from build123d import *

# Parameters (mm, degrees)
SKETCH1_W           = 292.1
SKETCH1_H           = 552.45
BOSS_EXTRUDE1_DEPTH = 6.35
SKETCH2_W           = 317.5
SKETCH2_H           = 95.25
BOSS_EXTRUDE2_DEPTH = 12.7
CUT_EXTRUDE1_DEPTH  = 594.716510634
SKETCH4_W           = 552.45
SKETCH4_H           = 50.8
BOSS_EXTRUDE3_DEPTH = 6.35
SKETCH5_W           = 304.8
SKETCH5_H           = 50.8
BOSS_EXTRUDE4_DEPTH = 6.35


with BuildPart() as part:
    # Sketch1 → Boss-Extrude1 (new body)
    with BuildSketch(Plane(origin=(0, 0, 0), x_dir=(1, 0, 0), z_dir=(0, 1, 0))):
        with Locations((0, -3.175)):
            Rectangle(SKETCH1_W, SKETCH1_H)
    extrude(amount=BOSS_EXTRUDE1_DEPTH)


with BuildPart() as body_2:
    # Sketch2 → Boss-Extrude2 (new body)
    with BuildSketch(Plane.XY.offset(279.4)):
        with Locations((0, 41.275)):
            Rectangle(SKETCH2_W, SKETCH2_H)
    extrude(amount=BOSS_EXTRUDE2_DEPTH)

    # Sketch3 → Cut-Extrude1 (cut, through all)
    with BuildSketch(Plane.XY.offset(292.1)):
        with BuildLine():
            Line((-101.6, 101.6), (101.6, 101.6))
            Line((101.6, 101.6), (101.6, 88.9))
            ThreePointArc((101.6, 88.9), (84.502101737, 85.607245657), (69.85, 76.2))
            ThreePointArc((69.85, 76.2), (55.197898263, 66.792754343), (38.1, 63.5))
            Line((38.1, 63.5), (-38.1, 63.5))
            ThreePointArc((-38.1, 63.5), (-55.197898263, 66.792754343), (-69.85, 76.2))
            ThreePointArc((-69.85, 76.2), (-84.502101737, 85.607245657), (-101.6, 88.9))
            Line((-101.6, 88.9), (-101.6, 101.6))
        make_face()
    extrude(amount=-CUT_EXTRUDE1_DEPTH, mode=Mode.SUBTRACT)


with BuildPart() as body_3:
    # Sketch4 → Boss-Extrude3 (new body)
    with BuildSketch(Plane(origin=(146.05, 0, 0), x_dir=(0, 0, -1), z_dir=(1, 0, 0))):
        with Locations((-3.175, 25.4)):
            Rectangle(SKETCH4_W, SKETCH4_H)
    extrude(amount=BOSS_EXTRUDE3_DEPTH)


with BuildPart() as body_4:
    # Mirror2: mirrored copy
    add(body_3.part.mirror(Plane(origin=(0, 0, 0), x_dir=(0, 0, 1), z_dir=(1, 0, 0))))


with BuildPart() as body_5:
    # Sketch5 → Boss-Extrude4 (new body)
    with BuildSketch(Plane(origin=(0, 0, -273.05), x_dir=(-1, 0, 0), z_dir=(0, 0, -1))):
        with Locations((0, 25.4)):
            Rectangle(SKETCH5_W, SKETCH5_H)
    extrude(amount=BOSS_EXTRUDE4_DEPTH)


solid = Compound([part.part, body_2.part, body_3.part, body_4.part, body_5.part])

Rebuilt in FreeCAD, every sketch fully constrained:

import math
import FreeCAD as App
import Part
import Sketcher
from FreeCAD import Vector
Q = App.Units.Quantity


def add_polygon(sketch, points):
    """Adds a closed chain of lines whose ends are joined by coincident constraints."""
    first, n = sketch.GeometryCount, len(points)
    for a, b in zip(points, points[1:] + points[:1]):
        sketch.addGeometry(Part.LineSegment(App.Vector(*a, 0), App.Vector(*b, 0)), False)
    for i in range(n):
        sketch.addConstraint(Sketcher.Constraint("Coincident", first + i, 2, first + (i + 1) % n, 1))

doc = App.newDocument("Part")
body = doc.addObject("PartDesign::Body", "Body")

sketch1 = body.newObject("Sketcher::SketchObject", "Sketch")
sketch1.AttachmentSupport = (doc.getObject("XZ_Plane"), [""])
sketch1.MapMode = "FlatFace"
add_polygon(sketch1, [(-146.05, -273.05), (-146.05, 279.4), (146.05, 279.4), (146.05, -273.05)])
sketch1.addConstraint([
    Sketcher.Constraint("Vertical", 0),
    Sketcher.Constraint("Horizontal", 1),
    Sketcher.Constraint("Vertical", 2),
    Sketcher.Constraint("Horizontal", 3),
    Sketcher.Constraint("DistanceX", 1, 1, 1, 2, Q("11.5 in")),
    Sketcher.Constraint("DistanceY", -1, 1, 0, 2, Q("11 in")),
    Sketcher.Constraint("DistanceY", 0, 1, 0, 2, Q("21.75 in")),
    Sketcher.Constraint("DistanceX", 0, 2, -1, 1, Q("5.75 in")),
])
pad1 = body.newObject("PartDesign::Pad", "Pad")
pad1.Profile = sketch1
pad1.Length = Q("0.25 in")
pad1.Reversed = True
body2 = doc.addObject("PartDesign::Body", "Body001")

sketch2 = body2.newObject("Sketcher::SketchObject", "Sketch001")
sketch2.AttachmentSupport = (doc.getObject("XY_Plane001"), [""])
sketch2.MapMode = "FlatFace"
sketch2.AttachmentOffset = App.Placement(Vector(0, 0, 11 * 25.4), App.Rotation())
add_polygon(sketch2, [(-158.75, 88.9), (-158.75, -6.35), (158.75, -6.35), (158.75, 88.9)])
sketch2.addConstraint([
    Sketcher.Constraint("Vertical", 0),
    Sketcher.Constraint("Horizontal", 1),
    Sketcher.Constraint("Vertical", 2),
    Sketcher.Constraint("Horizontal", 3),
    Sketcher.Constraint("DistanceX", 1, 1, 1, 2, Q("12.5 in")),
    Sketcher.Constraint("DistanceY", 0, 2, 0, 1, Q("3.75 in")),
    Sketcher.Constraint("DistanceY", -1, 1, 2, 2, Q("3.5 in")),
    Sketcher.Constraint("DistanceX", 0, 2, -1, 1, Q("6.25 in")),
])
pad2 = body2.newObject("PartDesign::Pad", "Pad001")
pad2.Profile = sketch2
pad2.Length = Q("0.5 in")

sketch3 = body2.newObject("Sketcher::SketchObject", "Sketch002")
sketch3.AttachmentSupport = (doc.getObject("XY_Plane001"), [""])
sketch3.MapMode = "FlatFace"
sketch3.AttachmentOffset = App.Placement(Vector(0, 0, 11.5 * 25.4), App.Rotation())
sketch3.addGeometry([
    Part.LineSegment(Vector(101.6, 101.6, 0), Vector(-101.6, 101.6, 0)),
    Part.LineSegment(Vector(-101.6, 101.6, 0), Vector(-101.6, 88.9, 0)),
    Part.ArcOfCircle(Part.Circle(Vector(-101.6, 42.8625, 0), Vector(0, 0, 1), 46.0375), math.radians(46.397181), math.radians(90)),
    Part.ArcOfCircle(Part.Circle(Vector(-38.1, 109.5375, 0), Vector(0, 0, 1), 46.0375), math.radians(-133.602819), math.radians(-90)),
    Part.LineSegment(Vector(-38.1, 63.5, 0), Vector(38.1, 63.5, 0)),
    Part.ArcOfCircle(Part.Circle(Vector(38.1, 109.5375, 0), Vector(0, 0, 1), 46.0375), math.radians(-90), math.radians(-46.397181)),
    Part.ArcOfCircle(Part.Circle(Vector(101.6, 42.8625, 0), Vector(0, 0, 1), 46.0375), math.radians(90), math.radians(133.602819)),
    Part.LineSegment(Vector(101.6, 88.9, 0), Vector(101.6, 101.6, 0)),
], False)
sketch3.addConstraint([
    Sketcher.Constraint("Coincident", 0, 2, 1, 1),
    Sketcher.Constraint("Coincident", 1, 2, 2, 2),
    Sketcher.Constraint("Tangent", 2, 1, 3, 1),
    Sketcher.Constraint("Tangent", 3, 2, 4, 1),
    Sketcher.Constraint("Tangent", 4, 2, 5, 1),
    Sketcher.Constraint("Tangent", 5, 2, 6, 2),
    Sketcher.Constraint("Coincident", 6, 1, 7, 1),
    Sketcher.Constraint("Coincident", 7, 2, 0, 1),
    Sketcher.Constraint("Horizontal", 0),
    Sketcher.Constraint("Vertical", 1),
    Sketcher.Constraint("Horizontal", 4),
    Sketcher.Constraint("Vertical", 7),
    Sketcher.Constraint("Equal", 2, 3),
    Sketcher.Constraint("Equal", 3, 5),
    Sketcher.Constraint("Equal", 5, 6),
    Sketcher.Constraint("Symmetric", 2, 3, 6, 3, -2),
    Sketcher.Constraint("Vertical", 2, 3, 0, 2),
    Sketcher.Constraint("DistanceX", 0, 2, 0, 1, Q("8 in")),
    Sketcher.Constraint("DistanceX", 4, 1, 4, 2, Q("3 in")),
    Sketcher.Constraint("DistanceY", 1, 2, 1, 1, Q("0.5 in")),
    Sketcher.Constraint("DistanceX", 2, 3, -1, 1, Q("4 in")),
    Sketcher.Constraint("DistanceY", -1, 1, 0, 2, Q("4 in")),
    Sketcher.Constraint("DistanceY", -1, 1, 2, 1, Q("3 in")),
])
pocket1 = body2.newObject("PartDesign::Pocket", "Pocket")
pocket1.Profile = sketch3
pocket1.Type = "ThroughAll"
body3 = doc.addObject("PartDesign::Body", "Body002")

sketch4 = body3.newObject("Sketcher::SketchObject", "Sketch003")
sketch4.AttachmentSupport = (doc.getObject("YZ_Plane002"), [""])
sketch4.MapMode = "FlatFace"
sketch4.AttachmentOffset = App.Placement(Vector(0, 0, 5.75 * 25.4), App.Rotation())
add_polygon(sketch4, [(50.8, 279.4), (0, 279.4), (0, -273.05), (50.8, -273.05)])
sketch4.addConstraint([
    Sketcher.Constraint("Horizontal", 0),
    Sketcher.Constraint("Vertical", 1),
    Sketcher.Constraint("Horizontal", 2),
    Sketcher.Constraint("Vertical", 3),
    Sketcher.Constraint("PointOnObject", 0, 2, -2),
    Sketcher.Constraint("DistanceX", 0, 2, 0, 1, Q("2 in")),
    Sketcher.Constraint("DistanceY", -1, 1, 0, 2, Q("11 in")),
    Sketcher.Constraint("DistanceY", 1, 2, 1, 1, Q("21.75 in")),
])
pad3 = body3.newObject("PartDesign::Pad", "Pad002")
pad3.Profile = sketch4
pad3.Length = Q("0.25 in")
body4 = doc.addObject("PartDesign::Body", "Body003")
doc.recompute()

mirroring = doc.addObject("Part::Mirroring", "Mirroring")
mirroring.Source = body3
mirroring.Base = Vector(0, 0, 0)
mirroring.Normal = Vector(1, 0, 0)
body4.BaseFeature = mirroring
doc.recompute()
body5 = doc.addObject("PartDesign::Body", "Body004")

sketch5 = body5.newObject("Sketcher::SketchObject", "Sketch004")
sketch5.AttachmentSupport = (doc.getObject("XY_Plane004"), [""])
sketch5.MapMode = "FlatFace"
sketch5.AttachmentOffset = App.Placement(Vector(0, 0, -10.75 * 25.4), App.Rotation())
add_polygon(sketch5, [(152.4, 50.8), (152.4, 0), (-152.4, 0), (-152.4, 50.8)])
sketch5.addConstraint([
    Sketcher.Constraint("Vertical", 0),
    Sketcher.Constraint("Horizontal", 1),
    Sketcher.Constraint("Vertical", 2),
    Sketcher.Constraint("Horizontal", 3),
    Sketcher.Constraint("Symmetric", 0, 2, 1, 2, -1, 1),
    Sketcher.Constraint("DistanceX", 1, 2, 1, 1, Q("12 in")),
    Sketcher.Constraint("DistanceY", 0, 2, 0, 1, Q("2 in")),
])
pad4 = body5.newObject("PartDesign::Pad", "Pad003")
pad4.Profile = sketch5
pad4.Length = Q("0.25 in")
pad4.Reversed = True
mirroring.Visibility = False

doc.recompute()
